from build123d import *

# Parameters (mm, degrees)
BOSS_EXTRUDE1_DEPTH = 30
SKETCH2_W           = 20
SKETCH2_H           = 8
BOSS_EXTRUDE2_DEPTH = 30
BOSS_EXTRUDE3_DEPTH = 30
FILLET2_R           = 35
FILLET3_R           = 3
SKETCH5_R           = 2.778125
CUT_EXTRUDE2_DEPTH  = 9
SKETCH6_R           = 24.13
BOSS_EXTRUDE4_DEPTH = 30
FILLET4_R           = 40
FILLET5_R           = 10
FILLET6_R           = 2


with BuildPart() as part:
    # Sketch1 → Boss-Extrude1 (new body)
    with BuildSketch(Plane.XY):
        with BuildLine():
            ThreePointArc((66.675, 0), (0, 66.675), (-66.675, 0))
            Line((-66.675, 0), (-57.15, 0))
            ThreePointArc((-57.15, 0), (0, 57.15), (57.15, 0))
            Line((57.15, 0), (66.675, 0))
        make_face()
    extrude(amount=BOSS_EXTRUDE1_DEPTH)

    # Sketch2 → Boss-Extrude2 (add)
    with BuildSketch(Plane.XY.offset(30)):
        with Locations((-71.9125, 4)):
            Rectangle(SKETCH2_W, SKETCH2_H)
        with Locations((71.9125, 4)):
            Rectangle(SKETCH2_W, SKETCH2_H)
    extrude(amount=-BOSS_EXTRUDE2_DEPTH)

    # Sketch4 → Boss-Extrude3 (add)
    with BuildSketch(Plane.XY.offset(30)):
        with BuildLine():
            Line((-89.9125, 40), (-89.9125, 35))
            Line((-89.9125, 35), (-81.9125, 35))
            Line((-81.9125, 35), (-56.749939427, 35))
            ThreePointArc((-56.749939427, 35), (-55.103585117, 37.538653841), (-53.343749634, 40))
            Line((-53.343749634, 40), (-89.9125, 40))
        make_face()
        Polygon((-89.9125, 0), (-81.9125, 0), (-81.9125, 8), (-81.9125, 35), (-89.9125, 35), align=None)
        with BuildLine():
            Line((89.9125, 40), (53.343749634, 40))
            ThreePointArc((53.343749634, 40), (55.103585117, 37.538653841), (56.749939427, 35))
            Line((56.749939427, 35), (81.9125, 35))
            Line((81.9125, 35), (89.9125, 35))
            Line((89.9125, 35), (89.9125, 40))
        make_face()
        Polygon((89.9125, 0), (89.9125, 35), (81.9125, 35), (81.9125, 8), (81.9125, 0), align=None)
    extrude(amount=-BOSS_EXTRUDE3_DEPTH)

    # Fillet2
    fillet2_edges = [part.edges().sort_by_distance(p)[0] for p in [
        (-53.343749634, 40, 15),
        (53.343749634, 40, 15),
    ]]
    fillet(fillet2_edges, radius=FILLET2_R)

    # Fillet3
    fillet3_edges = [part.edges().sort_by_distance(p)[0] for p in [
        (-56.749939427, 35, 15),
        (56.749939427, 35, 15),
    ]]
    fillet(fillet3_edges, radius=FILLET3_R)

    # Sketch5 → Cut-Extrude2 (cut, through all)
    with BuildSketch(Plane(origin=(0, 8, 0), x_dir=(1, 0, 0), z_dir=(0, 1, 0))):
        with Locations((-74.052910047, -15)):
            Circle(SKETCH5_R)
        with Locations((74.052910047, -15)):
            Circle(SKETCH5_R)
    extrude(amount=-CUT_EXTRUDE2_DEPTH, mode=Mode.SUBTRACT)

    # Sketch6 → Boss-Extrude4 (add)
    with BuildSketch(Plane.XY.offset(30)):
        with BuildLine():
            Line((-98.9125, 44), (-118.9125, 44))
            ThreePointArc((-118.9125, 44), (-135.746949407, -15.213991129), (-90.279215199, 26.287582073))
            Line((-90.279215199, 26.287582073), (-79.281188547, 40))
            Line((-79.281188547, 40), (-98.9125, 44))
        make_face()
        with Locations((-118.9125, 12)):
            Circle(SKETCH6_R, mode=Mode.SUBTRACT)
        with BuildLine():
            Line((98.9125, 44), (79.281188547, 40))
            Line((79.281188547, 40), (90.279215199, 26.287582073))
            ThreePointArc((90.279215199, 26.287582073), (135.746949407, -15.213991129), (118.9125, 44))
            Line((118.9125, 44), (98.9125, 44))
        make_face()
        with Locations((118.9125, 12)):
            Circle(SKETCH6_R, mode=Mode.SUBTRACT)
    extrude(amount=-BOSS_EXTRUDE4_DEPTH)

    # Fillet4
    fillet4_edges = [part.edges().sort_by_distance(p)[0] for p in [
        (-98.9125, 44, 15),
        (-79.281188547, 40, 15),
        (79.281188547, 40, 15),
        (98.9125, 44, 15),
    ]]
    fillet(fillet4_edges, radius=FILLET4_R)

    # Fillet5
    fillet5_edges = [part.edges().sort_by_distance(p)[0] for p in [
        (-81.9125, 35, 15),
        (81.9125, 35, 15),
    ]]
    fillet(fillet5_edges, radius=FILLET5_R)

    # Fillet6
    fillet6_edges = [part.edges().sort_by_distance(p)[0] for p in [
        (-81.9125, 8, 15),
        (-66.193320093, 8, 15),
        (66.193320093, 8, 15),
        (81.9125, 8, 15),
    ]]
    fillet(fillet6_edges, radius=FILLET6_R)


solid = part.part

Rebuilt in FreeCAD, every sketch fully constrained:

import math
import FreeCAD as App
import Part
import Sketcher
from FreeCAD import Vector
Q = App.Units.Quantity


def edges_at(feature, points):
    """Names of the edges that pass closest to the given points."""
    edges = feature.Shape.Edges
    near = lambda p: min(range(len(edges)), key=lambda i: edges[i].distToShape(Part.Vertex(*p))[0])
    return sorted({f"Edge{near(p) + 1}" for p in points})


def add_polygon(sketch, points):
    """Adds a closed chain of lines whose ends are joined by coincident constraints."""
    first, n = sketch.GeometryCount, len(points)
    for a, b in zip(points, points[1:] + points[:1]):
        sketch.addGeometry(Part.LineSegment(App.Vector(*a, 0), App.Vector(*b, 0)), False)
    for i in range(n):
        sketch.addConstraint(Sketcher.Constraint("Coincident", first + i, 2, first + (i + 1) % n, 1))

doc = App.newDocument("Part")
body = doc.addObject("PartDesign::Body", "Body")

sketch1 = doc.addObject("Sketcher::SketchObject", "Sketch")
body.addObject(sketch1)
sketch1.AttachmentSupport = (doc.XY_Plane, [""])
sketch1.MapMode = "FlatFace"
sketch1.addGeometry(Part.ArcOfCircle(Part.Circle(Vector(0, 0, 0), Vector(0, 0, 1), 66.675), math.radians(0), math.radians(180)), False)
sketch1.addGeometry(Part.LineSegment(Vector(-66.675, 0, 0), Vector(-57.15, 0, 0)), False)
sketch1.addGeometry(Part.ArcOfCircle(Part.Circle(Vector(0, 0, 0), Vector(0, 0, 1), 57.15), math.radians(0), math.radians(180)), False)
sketch1.addGeometry(Part.LineSegment(Vector(57.15, 0, 0), Vector(66.675, 0, 0)), False)
sketch1.addConstraint(Sketcher.Constraint("Coincident", 0, 2, 1, 1))
sketch1.addConstraint(Sketcher.Constraint("Coincident", 1, 2, 2, 2))
sketch1.addConstraint(Sketcher.Constraint("Coincident", 2, 1, 3, 1))
sketch1.addConstraint(Sketcher.Constraint("Coincident", 3, 2, 0, 1))
sketch1.addConstraint(Sketcher.Constraint("Horizontal", 1))
sketch1.addConstraint(Sketcher.Constraint("Horizontal", 3))
sketch1.addConstraint(Sketcher.Constraint("Coincident", 0, 3, -1, 1))
sketch1.addConstraint(Sketcher.Constraint("Coincident", 2, 3, -1, 1))
sketch1.addConstraint(Sketcher.Constraint("PointOnObject", 0, 2, -1))
sketch1.addConstraint(Sketcher.Constraint("PointOnObject", 2, 1, -1))
sketch1.addConstraint(Sketcher.Constraint("Radius", 2, Q("57.15 mm")))
sketch1.addConstraint(Sketcher.Constraint("Radius", 0, Q("66.675 mm")))
pad1 = doc.addObject("PartDesign::Pad", "Pad")
body.addObject(pad1)
pad1.Profile = sketch1
pad1.Length = 30

sketch2 = doc.addObject("Sketcher::SketchObject", "Sketch001")
body.addObject(sketch2)
sketch2.AttachmentSupport = (doc.XY_Plane, [""])
sketch2.MapMode = "FlatFace"
sketch2.AttachmentOffset = App.Placement(Vector(0, 0, 30), App.Rotation())
add_polygon(sketch2, [(-81.9125, 8), (-81.9125, 0), (-61.9125, 0), (-61.9125, 8)])
add_polygon(sketch2, [(61.9125, 8), (61.9125, 0), (81.9125, 0), (81.9125, 8)])
sketch2.addConstraint(Sketcher.Constraint("Vertical", 0))
sketch2.addConstraint(Sketcher.Constraint("Horizontal", 1))
sketch2.addConstraint(Sketcher.Constraint("Vertical", 2))
sketch2.addConstraint(Sketcher.Constraint("Horizontal", 3))
sketch2.addConstraint(Sketcher.Constraint("Vertical", 4))
sketch2.addConstraint(Sketcher.Constraint("Horizontal", 5))
sketch2.addConstraint(Sketcher.Constraint("Vertical", 6))
sketch2.addConstraint(Sketcher.Constraint("Horizontal", 7))
sketch2.addConstraint(Sketcher.Constraint("Symmetric", 1, 2, 4, 2, -1, 1))
sketch2.addConstraint(Sketcher.Constraint("Symmetric", 0, 2, 5, 2, -2))
sketch2.addConstraint(Sketcher.Constraint("Horizontal", 3, 2, 6, 2))
sketch2.addConstraint(Sketcher.Constraint("DistanceX", 1, 1, 1, 2, Q("20 mm")))
sketch2.addConstraint(Sketcher.Constraint("DistanceY", 0, 2, 0, 1, Q("8 mm")))
sketch2.addConstraint(Sketcher.Constraint("DistanceX", 1, 2, 4, 2, Q("123.825 mm")))
pad2 = doc.addObject("PartDesign::Pad", "Pad001")
body.addObject(pad2)
pad2.Profile = sketch2
pad2.Length = 30
pad2.Reversed = True

sketch3 = doc.addObject("Sketcher::SketchObject", "Sketch002")
body.addObject(sketch3)
sketch3.AttachmentSupport = (doc.XY_Plane, [""])
sketch3.MapMode = "FlatFace"
sketch3.AttachmentOffset = App.Placement(Vector(0, 0, 30), App.Rotation())
sketch3.addGeometry(Part.LineSegment(Vector(-89.9125, 40, 0), Vector(-89.9125, 0, 0)), False)
sketch3.addGeometry(Part.LineSegment(Vector(-89.9125, 0, 0), Vector(-81.9125, 0, 0)), False)
sketch3.addGeometry(Part.LineSegment(Vector(-81.9125, 0, 0), Vector(-81.9125, 35, 0)), False)
sketch3.addGeometry(Part.LineSegment(Vector(-81.9125, 35, 0), Vector(-56.749939, 35, 0)), False)
sketch3.addGeometry(Part.ArcOfCircle(Part.Circle(Vector(0, 0, 0), Vector(0, 0, 1), 66.675), math.radians(143.135473), math.radians(148.336174)), False)
sketch3.addGeometry(Part.LineSegment(Vector(-53.34375, 40, 0), Vector(-89.9125, 40, 0)), False)
sketch3.addGeometry(Part.LineSegment(Vector(89.9125, 40, 0), Vector(53.34375, 40, 0)), False)
sketch3.addGeometry(Part.ArcOfCircle(Part.Circle(Vector(0, 0, 0), Vector(0, 0, 1), 66.675), math.radians(31.663826), math.radians(36.864527)), False)
sketch3.addGeometry(Part.LineSegment(Vector(56.749939, 35, 0), Vector(81.9125, 35, 0)), False)
sketch3.addGeometry(Part.LineSegment(Vector(81.9125, 35, 0), Vector(81.9125, 0, 0)), False)
sketch3.addGeometry(Part.LineSegment(Vector(81.9125, 0, 0), Vector(89.9125, 0, 0)), False)
sketch3.addGeometry(Part.LineSegment(Vector(89.9125, 0, 0), Vector(89.9125, 40, 0)), False)
sketch3.addConstraint(Sketcher.Constraint("Coincident", 0, 2, 1, 1))
sketch3.addConstraint(Sketcher.Constraint("Coincident", 1, 2, 2, 1))
sketch3.addConstraint(Sketcher.Constraint("Coincident", 2, 2, 3, 1))
sketch3.addConstraint(Sketcher.Constraint("Coincident", 3, 2, 4, 2))
sketch3.addConstraint(Sketcher.Constraint("Coincident", 4, 1, 5, 1))
sketch3.addConstraint(Sketcher.Constraint("Coincident", 5, 2, 0, 1))
sketch3.addConstraint(Sketcher.Constraint("Coincident", 6, 2, 7, 2))
sketch3.addConstraint(Sketcher.Constraint("Coincident", 7, 1, 8, 1))
sketch3.addConstraint(Sketcher.Constraint("Coincident", 8, 2, 9, 1))
sketch3.addConstraint(Sketcher.Constraint("Coincident", 9, 2, 10, 1))
sketch3.addConstraint(Sketcher.Constraint("Coincident", 10, 2, 11, 1))
sketch3.addConstraint(Sketcher.Constraint("Coincident", 11, 2, 6, 1))
sketch3.addConstraint(Sketcher.Constraint("Vertical", 0))
sketch3.addConstraint(Sketcher.Constraint("Horizontal", 1))
sketch3.addConstraint(Sketcher.Constraint("Vertical", 2))
sketch3.addConstraint(Sketcher.Constraint("Horizontal", 3))
sketch3.addConstraint(Sketcher.Constraint("Horizontal", 5))
sketch3.addConstraint(Sketcher.Constraint("Horizontal", 6))
sketch3.addConstraint(Sketcher.Constraint("Horizontal", 8))
sketch3.addConstraint(Sketcher.Constraint("Vertical", 9))
sketch3.addConstraint(Sketcher.Constraint("Horizontal", 10))
sketch3.addConstraint(Sketcher.Constraint("Vertical", 11))
sketch3.addConstraint(Sketcher.Constraint("Coincident", 4, 3, -1, 1))
sketch3.addConstraint(Sketcher.Constraint("Coincident", 7, 3, -1, 1))
sketch3.addConstraint(Sketcher.Constraint("Equal", 4, 7))
sketch3.addConstraint(Sketcher.Constraint("Symmetric", 1, 2, 9, 2, -1, 1))
sketch3.addConstraint(Sketcher.Constraint("Symmetric", 0, 2, 10, 2, -2))
sketch3.addConstraint(Sketcher.Constraint("Horizontal", 5, 2, 6, 2))
sketch3.addConstraint(Sketcher.Constraint("Horizontal", 3, 2, 7, 1))
sketch3.addConstraint(Sketcher.Constraint("DistanceX", 1, 1, 1, 2, Q("8 mm")))
sketch3.addConstraint(Sketcher.Constraint("DistanceY", 0, 2, 0, 1, Q("40 mm")))
sketch3.addConstraint(Sketcher.Constraint("DistanceY", 2, 1, 2, 2, Q("35 mm")))
sketch3.addConstraint(Sketcher.Constraint("Radius", 4, Q("66.675 mm")))
sketch3.addConstraint(Sketcher.Constraint("DistanceX", 3, 1, 3, 2, Q("25.162561 mm")))
pad3 = doc.addObject("PartDesign::Pad", "Pad002")
body.addObject(pad3)
pad3.Profile = sketch3
pad3.Length = 30
pad3.Reversed = True
doc.recompute()

fillet = doc.addObject("PartDesign::Fillet", "Fillet")
body.addObject(fillet)
fillet.Base = (pad3, edges_at(pad3, [(-53.344, 40, 15), (53.344, 40, 15)]))
fillet.Radius = 35
doc.recompute()

fillet2 = doc.addObject("PartDesign::Fillet", "Fillet001")
body.addObject(fillet2)
fillet2.Base = (fillet, edges_at(fillet, [(-56.75, 35, 15), (56.75, 35, 15)]))
fillet2.Radius = 3

sketch4 = doc.addObject("Sketcher::SketchObject", "Sketch003")
body.addObject(sketch4)
sketch4.AttachmentSupport = (doc.XZ_Plane, [""])
sketch4.MapMode = "FlatFace"
sketch4.AttachmentOffset = App.Placement(Vector(0, 0, -8), App.Rotation())
sketch4.addGeometry(Part.Circle(Vector(-74.05291, 15, 0), Vector(0, 0, 1), 2.778125), False)
sketch4.addGeometry(Part.Circle(Vector(74.05291, 15, 0), Vector(0, 0, 1), 2.778125), False)
sketch4.addConstraint(Sketcher.Constraint("Equal", 0, 1))
sketch4.addConstraint(Sketcher.Constraint("Symmetric", 0, 3, 1, 3, -2))
sketch4.addConstraint(Sketcher.Constraint("DistanceY", -1, 1, 0, 3, Q("15 mm")))
sketch4.addConstraint(Sketcher.Constraint("Diameter", 0, Q("5.55625 mm")))
sketch4.addConstraint(Sketcher.Constraint("DistanceX", 0, 3, -1, 1, Q("74.05291 mm")))
pocket1 = doc.addObject("PartDesign::Pocket", "Pocket")
body.addObject(pocket1)
pocket1.Profile = sketch4
pocket1.Type = "ThroughAll"
pocket1.Reversed = True

sketch5 = doc.addObject("Sketcher::SketchObject", "Sketch004")
body.addObject(sketch5)
sketch5.AttachmentSupport = (doc.XY_Plane, [""])
sketch5.MapMode = "FlatFace"
sketch5.AttachmentOffset = App.Placement(Vector(0, 0, 30), App.Rotation())
sketch5.addGeometry(Part.LineSegment(Vector(-98.9125, 44, 0), Vector(-118.9125, 44, 0)), False)
sketch5.addGeometry(Part.ArcOfCircle(Part.Circle(Vector(-118.9125, 12, 0), Vector(0, 0, 1), 32), math.radians(90), math.radians(386.518512)), False)
sketch5.addGeometry(Part.LineSegment(Vector(-90.279215, 26.287582, 0), Vector(-79.281189, 40, 0)), False)
sketch5.addGeometry(Part.LineSegment(Vector(-79.281189, 40, 0), Vector(-98.9125, 44, 0)), False)
sketch5.addGeometry(Part.Circle(Vector(-118.9125, 12, 0), Vector(0, 0, 1), 24.13), False)
sketch5.addGeometry(Part.LineSegment(Vector(98.9125, 44, 0), Vector(79.281189, 40, 0)), False)
sketch5.addGeometry(Part.LineSegment(Vector(79.281189, 40, 0), Vector(90.279215, 26.287582, 0)), False)
sketch5.addGeometry(Part.ArcOfCircle(Part.Circle(Vector(118.9125, 12, 0), Vector(0, 0, 1), 32), math.radians(153.481488), math.radians(450)), False)
sketch5.addGeometry(Part.LineSegment(Vector(118.9125, 44, 0), Vector(98.9125, 44, 0)), False)
sketch5.addGeometry(Part.Circle(Vector(118.9125, 12, 0), Vector(0, 0, 1), 24.13), False)
sketch5.addConstraint(Sketcher.Constraint("Tangent", 0, 2, 1, 1))
sketch5.addConstraint(Sketcher.Constraint("Coincident", 1, 2, 2, 1))
sketch5.addConstraint(Sketcher.Constraint("Coincident", 2, 2, 3, 1))
sketch5.addConstraint(Sketcher.Constraint("Coincident", 3, 2, 0, 1))
sketch5.addConstraint(Sketcher.Constraint("Coincident", 5, 2, 6, 1))
sketch5.addConstraint(Sketcher.Constraint("Coincident", 6, 2, 7, 1))
sketch5.addConstraint(Sketcher.Constraint("Tangent", 7, 2, 8, 1))
sketch5.addConstraint(Sketcher.Constraint("Coincident", 8, 2, 5, 1))
sketch5.addConstraint(Sketcher.Constraint("Horizontal", 0))
sketch5.addConstraint(Sketcher.Constraint("Horizontal", 8))
sketch5.addConstraint(Sketcher.Constraint("Coincident", 4, 3, 1, 3))
sketch5.addConstraint(Sketcher.Constraint("Coincident", 9, 3, 7, 3))
sketch5.addConstraint(Sketcher.Constraint("Equal", 1, 7))
sketch5.addConstraint(Sketcher.Constraint("Equal", 4, 9))
sketch5.addConstraint(Sketcher.Constraint("Symmetric", 1, 3, 7, 3, -2))
sketch5.addConstraint(Sketcher.Constraint("Symmetric", 2, 2, 5, 2, -2))
sketch5.addConstraint(Sketcher.Constraint("Horizontal", 1, 2, 6, 2))
sketch5.addConstraint(Sketcher.Constraint("Equal", 0, 8))
sketch5.addConstraint(Sketcher.Constraint("Radius", 1, Q("32 mm")))
sketch5.addConstraint(Sketcher.Constraint("Diameter", 4, Q("48.26 mm")))
sketch5.addConstraint(Sketcher.Constraint("DistanceX", 0, 2, 0, 1, Q("20 mm")))
sketch5.addConstraint(Sketcher.Constraint("DistanceY", -1, 1, 1, 3, Q("12 mm")))
sketch5.addConstraint(Sketcher.Constraint("DistanceY", -1, 1, 2, 2, Q("40 mm")))
sketch5.addConstraint(Sketcher.Constraint("DistanceX", 1, 3, 7, 3, Q("237.825 mm")))
sketch5.addConstraint(Sketcher.Constraint("Distance", 3, Q("20.03468 mm")))
sketch5.addConstraint(Sketcher.Constraint("DistanceX", 1, 2, 6, 2, Q("180.55843 mm")))
pad4 = doc.addObject("PartDesign::Pad", "Pad003")
body.addObject(pad4)
pad4.Profile = sketch5
pad4.Length = 30
pad4.Reversed = True
doc.recompute()

fillet3 = doc.addObject("PartDesign::Fillet", "Fillet002")
body.addObject(fillet3)
fillet3.Base = (pad4, edges_at(pad4, [
    (-98.912, 44, 15),
    (-79.281, 40, 15),
    (79.281, 40, 15),
    (98.912, 44, 15),
]))
fillet3.Radius = 40
doc.recompute()

fillet4 = doc.addObject("PartDesign::Fillet", "Fillet003")
body.addObject(fillet4)
fillet4.Base = (fillet3, edges_at(fillet3, [(-81.912, 35, 15), (81.912, 35, 15)]))
fillet4.Radius = 10
doc.recompute()

fillet5 = doc.addObject("PartDesign::Fillet", "Fillet004")
body.addObject(fillet5)
fillet5.Base = (fillet4, edges_at(fillet4, [
    (-81.912, 8, 15),
    (-66.193, 8, 15),
    (66.193, 8, 15),
    (81.912, 8, 15),
]))
fillet5.Radius = 2

doc.recompute()
